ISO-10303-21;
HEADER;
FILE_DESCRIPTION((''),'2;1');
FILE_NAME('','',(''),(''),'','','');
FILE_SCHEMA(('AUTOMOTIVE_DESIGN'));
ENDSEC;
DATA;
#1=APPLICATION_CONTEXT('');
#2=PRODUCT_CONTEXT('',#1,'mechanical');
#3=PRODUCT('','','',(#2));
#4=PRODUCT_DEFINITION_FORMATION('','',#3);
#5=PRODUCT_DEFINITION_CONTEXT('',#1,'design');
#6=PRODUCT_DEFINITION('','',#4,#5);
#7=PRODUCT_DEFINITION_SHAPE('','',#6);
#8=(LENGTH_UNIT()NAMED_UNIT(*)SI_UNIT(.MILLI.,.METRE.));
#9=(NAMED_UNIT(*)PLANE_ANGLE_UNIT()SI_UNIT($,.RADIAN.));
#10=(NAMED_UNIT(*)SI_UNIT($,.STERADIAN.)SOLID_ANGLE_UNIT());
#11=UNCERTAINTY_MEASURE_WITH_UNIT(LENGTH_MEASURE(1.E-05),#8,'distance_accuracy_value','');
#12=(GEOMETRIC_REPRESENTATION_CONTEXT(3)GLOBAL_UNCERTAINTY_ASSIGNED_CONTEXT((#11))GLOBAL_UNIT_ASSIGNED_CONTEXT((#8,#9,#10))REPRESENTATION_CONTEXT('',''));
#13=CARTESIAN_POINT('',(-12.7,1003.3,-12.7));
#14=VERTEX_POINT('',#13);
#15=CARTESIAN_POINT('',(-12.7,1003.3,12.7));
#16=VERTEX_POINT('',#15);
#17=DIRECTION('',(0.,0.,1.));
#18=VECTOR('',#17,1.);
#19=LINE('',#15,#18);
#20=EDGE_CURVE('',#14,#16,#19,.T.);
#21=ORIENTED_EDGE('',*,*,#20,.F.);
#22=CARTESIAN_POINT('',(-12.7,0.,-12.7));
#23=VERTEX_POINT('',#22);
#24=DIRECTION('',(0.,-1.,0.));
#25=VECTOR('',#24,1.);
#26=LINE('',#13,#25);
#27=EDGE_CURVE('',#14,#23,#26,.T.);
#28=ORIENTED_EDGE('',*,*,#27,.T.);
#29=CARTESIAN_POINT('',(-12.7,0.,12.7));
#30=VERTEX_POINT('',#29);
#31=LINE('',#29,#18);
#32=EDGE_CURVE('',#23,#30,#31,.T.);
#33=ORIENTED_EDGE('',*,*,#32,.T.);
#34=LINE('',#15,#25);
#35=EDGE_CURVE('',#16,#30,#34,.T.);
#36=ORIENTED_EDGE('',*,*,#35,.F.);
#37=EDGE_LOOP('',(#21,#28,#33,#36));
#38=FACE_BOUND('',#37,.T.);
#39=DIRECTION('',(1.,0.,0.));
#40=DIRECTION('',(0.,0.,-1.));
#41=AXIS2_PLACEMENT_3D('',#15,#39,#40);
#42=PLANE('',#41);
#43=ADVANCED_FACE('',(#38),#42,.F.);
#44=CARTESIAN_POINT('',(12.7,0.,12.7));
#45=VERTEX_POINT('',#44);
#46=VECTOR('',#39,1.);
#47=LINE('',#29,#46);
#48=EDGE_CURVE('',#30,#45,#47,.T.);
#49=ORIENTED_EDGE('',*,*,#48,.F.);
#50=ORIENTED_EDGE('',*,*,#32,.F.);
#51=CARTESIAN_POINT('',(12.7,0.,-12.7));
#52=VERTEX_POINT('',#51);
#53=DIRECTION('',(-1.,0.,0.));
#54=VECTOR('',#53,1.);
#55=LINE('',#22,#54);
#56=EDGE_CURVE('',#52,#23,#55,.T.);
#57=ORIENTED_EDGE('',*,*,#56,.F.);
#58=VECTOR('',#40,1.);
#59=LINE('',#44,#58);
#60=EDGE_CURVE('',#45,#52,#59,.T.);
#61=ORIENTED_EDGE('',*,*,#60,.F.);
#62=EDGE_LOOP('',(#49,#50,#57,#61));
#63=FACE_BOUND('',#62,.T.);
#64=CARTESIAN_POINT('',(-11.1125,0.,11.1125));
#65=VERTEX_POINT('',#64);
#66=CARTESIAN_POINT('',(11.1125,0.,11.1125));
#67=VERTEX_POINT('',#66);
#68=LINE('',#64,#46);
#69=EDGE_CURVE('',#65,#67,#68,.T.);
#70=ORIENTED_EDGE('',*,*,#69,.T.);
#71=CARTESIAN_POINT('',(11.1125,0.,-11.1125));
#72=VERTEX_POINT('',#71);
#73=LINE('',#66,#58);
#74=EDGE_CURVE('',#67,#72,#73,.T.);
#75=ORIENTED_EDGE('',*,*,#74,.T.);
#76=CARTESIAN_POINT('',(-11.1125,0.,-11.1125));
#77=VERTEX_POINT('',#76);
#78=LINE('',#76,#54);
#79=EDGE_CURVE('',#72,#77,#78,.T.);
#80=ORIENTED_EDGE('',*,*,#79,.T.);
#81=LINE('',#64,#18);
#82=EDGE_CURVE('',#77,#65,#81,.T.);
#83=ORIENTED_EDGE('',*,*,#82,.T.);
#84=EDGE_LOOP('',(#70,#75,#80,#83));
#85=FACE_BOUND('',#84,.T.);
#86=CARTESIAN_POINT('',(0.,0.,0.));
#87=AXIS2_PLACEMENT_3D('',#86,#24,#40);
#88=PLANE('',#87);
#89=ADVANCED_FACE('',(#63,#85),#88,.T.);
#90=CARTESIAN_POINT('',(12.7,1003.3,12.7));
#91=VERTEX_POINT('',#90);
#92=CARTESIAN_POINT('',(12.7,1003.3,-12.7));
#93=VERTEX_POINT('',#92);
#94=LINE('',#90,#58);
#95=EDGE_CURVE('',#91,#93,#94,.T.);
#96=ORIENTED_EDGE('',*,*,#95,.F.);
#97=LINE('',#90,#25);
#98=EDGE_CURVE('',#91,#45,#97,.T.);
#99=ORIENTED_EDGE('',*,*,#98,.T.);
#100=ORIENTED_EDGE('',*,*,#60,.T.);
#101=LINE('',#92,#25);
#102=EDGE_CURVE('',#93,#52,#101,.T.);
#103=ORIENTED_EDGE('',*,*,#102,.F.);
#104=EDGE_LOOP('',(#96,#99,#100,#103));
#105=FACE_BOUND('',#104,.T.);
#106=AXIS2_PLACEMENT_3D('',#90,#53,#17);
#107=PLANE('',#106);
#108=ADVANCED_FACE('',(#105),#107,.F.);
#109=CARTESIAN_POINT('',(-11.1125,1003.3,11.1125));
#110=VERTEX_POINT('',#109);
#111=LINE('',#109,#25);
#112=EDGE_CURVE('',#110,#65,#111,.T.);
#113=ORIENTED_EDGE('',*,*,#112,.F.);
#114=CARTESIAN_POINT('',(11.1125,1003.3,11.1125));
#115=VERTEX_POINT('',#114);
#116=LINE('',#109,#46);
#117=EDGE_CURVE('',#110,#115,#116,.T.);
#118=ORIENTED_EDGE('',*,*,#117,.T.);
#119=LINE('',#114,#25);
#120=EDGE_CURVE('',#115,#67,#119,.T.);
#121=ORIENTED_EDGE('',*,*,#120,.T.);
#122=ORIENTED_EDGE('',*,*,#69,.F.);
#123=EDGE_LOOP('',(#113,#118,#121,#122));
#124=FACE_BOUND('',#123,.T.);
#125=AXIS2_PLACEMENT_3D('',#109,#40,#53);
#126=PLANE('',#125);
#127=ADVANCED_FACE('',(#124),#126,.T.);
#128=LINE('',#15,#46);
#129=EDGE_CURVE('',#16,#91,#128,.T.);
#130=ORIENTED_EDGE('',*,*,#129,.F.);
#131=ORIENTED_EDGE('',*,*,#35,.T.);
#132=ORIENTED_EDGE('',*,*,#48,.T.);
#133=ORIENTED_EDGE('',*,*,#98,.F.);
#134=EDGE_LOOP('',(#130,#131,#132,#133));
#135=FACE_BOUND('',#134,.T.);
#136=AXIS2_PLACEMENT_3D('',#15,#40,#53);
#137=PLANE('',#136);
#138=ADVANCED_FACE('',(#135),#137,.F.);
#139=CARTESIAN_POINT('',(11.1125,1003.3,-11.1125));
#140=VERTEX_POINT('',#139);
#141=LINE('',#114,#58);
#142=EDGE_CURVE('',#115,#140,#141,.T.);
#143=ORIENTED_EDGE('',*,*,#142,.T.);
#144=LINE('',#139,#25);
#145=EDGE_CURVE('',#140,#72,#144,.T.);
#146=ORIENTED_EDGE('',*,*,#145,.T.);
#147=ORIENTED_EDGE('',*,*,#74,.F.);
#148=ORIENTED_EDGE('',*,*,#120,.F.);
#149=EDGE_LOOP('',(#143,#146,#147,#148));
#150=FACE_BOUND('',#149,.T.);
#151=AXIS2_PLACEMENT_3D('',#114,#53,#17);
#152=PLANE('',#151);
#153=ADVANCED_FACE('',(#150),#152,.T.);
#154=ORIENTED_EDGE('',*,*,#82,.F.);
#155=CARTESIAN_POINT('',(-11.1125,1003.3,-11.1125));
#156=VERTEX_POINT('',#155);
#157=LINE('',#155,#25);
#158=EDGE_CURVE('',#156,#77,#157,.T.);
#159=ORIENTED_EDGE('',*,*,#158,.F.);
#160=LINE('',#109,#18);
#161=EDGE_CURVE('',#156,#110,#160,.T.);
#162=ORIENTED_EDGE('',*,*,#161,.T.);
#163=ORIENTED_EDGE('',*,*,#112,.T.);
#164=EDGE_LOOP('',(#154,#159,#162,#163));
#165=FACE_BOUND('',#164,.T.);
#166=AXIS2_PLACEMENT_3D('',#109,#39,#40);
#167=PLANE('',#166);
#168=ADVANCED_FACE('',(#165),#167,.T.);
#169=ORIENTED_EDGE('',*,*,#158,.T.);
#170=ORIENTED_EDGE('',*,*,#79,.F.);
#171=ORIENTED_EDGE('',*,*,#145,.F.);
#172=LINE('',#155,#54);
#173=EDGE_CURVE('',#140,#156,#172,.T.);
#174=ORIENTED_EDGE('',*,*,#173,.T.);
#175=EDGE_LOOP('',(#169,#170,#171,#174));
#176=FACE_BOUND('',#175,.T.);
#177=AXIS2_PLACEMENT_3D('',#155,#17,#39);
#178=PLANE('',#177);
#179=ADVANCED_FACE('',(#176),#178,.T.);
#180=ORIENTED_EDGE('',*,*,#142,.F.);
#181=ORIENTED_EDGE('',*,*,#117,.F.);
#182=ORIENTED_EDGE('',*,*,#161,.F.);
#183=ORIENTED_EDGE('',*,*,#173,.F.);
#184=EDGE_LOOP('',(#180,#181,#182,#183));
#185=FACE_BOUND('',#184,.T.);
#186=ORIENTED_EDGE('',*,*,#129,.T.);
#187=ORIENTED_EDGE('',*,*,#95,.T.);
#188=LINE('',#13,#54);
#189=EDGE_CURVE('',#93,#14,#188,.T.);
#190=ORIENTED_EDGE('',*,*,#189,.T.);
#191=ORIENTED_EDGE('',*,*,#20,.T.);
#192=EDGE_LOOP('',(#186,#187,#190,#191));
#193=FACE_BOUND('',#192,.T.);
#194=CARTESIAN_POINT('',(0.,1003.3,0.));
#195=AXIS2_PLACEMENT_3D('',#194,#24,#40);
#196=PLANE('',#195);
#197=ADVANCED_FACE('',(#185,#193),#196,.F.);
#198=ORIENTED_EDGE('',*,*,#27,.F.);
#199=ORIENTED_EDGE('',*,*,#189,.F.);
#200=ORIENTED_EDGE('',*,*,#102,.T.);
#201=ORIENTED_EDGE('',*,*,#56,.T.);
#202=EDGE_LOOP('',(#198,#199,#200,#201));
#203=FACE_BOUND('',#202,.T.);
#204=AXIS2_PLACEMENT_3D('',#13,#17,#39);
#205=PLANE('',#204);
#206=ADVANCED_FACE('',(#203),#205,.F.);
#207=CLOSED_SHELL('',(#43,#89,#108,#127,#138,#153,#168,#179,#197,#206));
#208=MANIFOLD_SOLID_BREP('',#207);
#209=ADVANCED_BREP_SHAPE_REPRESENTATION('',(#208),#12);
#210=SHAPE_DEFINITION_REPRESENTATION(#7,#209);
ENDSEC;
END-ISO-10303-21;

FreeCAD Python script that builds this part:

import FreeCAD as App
import Part
import Sketcher
from FreeCAD import Vector
Q = App.Units.Quantity

doc = App.newDocument("Part")
body = doc.addObject("PartDesign::Body", "Body")

sketch1 = body.newObject("Sketcher::SketchObject", "Sketch")
sketch1.AttachmentSupport = (doc.getObject("XZ_Plane"), [""])
sketch1.MapMode = "FlatFace"
sketch1.addGeometry(Part.LineSegment(Vector(-13, -13, 0), Vector(-13, 13, 0)), False)
sketch1.addGeometry(Part.LineSegment(Vector(-13, 13, 0), Vector(13, 13, 0)), False)
sketch1.addGeometry(Part.LineSegment(Vector(13, 13, 0), Vector(13, -13, 0)), False)
sketch1.addGeometry(Part.LineSegment(Vector(13, -13, 0), Vector(-13, -13, 0)), False)
sketch1.addGeometry(Part.LineSegment(Vector(11, 11, 0), Vector(-11, 11, 0)), False)
sketch1.addGeometry(Part.LineSegment(Vector(-11, 11, 0), Vector(-11, -11, 0)), False)
sketch1.addGeometry(Part.LineSegment(Vector(-11, -11, 0), Vector(11, -11, 0)), False)
sketch1.addGeometry(Part.LineSegment(Vector(11, -11, 0), Vector(11, 11, 0)), False)
sketch1.addConstraint(Sketcher.Constraint("Coincident", 0, 2, 1, 1))
sketch1.addConstraint(Sketcher.Constraint("Coincident", 1, 2, 2, 1))
sketch1.addConstraint(Sketcher.Constraint("Coincident", 2, 2, 3, 1))
sketch1.addConstraint(Sketcher.Constraint("Coincident", 3, 2, 0, 1))
sketch1.addConstraint(Sketcher.Constraint("Coincident", 4, 2, 5, 1))
sketch1.addConstraint(Sketcher.Constraint("Coincident", 5, 2, 6, 1))
sketch1.addConstraint(Sketcher.Constraint("Coincident", 6, 2, 7, 1))
sketch1.addConstraint(Sketcher.Constraint("Coincident", 7, 2, 4, 1))
sketch1.addConstraint(Sketcher.Constraint("Vertical", 0))
sketch1.addConstraint(Sketcher.Constraint("Horizontal", 1))
sketch1.addConstraint(Sketcher.Constraint("Vertical", 2))
sketch1.addConstraint(Sketcher.Constraint("Horizontal", 3))
sketch1.addConstraint(Sketcher.Constraint("Horizontal", 4))
sketch1.addConstraint(Sketcher.Constraint("Vertical", 5))
sketch1.addConstraint(Sketcher.Constraint("Horizontal", 6))
sketch1.addConstraint(Sketcher.Constraint("Vertical", 7))
sketch1.addConstraint(Sketcher.Constraint("Symmetric", 0, 2, 2, 2, -1, 1))
sketch1.addConstraint(Sketcher.Constraint("Symmetric", 4, 2, 6, 2, -1, 1))
sketch1.addConstraint(Sketcher.Constraint("Equal", 3, 0))
sketch1.addConstraint(Sketcher.Constraint("Equal", 6, 5))
sketch1.addConstraint(Sketcher.Constraint("DistanceX", 1, 1, 1, 2, Q("1 in")))
sketch1.addConstraint(Sketcher.Constraint("DistanceX", 4, 2, 4, 1, Q("0.875 in")))
pad1 = body.newObject("PartDesign::Pad", "Pad")
pad1.Profile = sketch1
pad1.Length = Q("39.5 in")
pad1.Reversed = True

doc.recompute()
